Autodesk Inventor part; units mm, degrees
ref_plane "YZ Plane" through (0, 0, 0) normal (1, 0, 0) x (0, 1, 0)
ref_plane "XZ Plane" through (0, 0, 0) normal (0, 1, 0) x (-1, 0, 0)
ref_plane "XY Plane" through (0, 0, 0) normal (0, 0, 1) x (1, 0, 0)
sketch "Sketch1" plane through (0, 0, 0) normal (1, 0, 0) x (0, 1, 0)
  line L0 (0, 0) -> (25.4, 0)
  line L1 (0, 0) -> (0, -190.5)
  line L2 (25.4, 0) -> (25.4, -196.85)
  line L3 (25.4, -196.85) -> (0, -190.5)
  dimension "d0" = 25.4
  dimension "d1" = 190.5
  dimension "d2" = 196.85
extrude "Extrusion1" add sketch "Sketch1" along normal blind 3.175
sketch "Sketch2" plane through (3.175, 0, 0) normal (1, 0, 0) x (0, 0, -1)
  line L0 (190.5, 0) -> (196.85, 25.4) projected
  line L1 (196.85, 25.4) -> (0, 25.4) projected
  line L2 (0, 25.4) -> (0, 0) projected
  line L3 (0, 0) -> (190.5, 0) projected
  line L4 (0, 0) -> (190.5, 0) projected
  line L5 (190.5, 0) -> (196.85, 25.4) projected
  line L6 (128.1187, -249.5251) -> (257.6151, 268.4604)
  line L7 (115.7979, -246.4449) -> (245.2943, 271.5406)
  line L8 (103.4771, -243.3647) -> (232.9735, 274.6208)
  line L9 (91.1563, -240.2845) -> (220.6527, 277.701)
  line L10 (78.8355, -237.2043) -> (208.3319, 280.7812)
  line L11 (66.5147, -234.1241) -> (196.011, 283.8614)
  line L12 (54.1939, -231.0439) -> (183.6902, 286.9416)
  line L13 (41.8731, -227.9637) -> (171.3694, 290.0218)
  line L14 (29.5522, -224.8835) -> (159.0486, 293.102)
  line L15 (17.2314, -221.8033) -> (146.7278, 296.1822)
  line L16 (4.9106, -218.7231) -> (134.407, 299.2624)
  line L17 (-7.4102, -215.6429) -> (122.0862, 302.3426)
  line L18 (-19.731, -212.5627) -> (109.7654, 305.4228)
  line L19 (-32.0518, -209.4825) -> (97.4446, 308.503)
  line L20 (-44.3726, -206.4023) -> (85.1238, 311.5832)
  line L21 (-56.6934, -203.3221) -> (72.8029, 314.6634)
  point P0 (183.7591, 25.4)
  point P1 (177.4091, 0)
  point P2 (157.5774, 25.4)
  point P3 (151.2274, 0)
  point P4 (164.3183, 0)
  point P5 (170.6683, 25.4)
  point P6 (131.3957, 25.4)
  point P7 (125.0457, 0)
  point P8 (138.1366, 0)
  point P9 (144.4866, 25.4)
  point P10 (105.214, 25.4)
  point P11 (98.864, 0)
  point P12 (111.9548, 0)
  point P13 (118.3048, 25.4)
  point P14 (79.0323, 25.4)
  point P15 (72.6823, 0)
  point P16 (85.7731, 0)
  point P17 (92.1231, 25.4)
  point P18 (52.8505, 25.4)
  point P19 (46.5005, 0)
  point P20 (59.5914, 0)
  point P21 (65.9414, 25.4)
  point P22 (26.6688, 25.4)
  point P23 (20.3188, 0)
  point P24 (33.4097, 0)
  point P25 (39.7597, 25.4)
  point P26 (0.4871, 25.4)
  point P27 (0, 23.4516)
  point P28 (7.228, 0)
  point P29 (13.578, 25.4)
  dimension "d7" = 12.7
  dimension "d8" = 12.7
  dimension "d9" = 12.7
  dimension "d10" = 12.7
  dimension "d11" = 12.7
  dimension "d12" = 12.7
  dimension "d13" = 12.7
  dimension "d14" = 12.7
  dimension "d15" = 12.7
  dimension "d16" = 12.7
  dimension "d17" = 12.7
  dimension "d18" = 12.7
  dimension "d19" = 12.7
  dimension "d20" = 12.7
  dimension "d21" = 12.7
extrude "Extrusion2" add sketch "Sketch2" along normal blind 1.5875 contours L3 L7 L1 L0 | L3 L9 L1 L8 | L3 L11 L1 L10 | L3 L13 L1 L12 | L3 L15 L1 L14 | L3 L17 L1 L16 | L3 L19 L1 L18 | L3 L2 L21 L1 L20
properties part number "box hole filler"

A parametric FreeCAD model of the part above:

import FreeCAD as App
import Part
import Sketcher

V = App.Vector
Q = App.Units.Quantity


def add_polygon(sketch, points):
    """Adds a closed chain of lines whose ends are joined by coincident constraints."""
    first, n = sketch.GeometryCount, len(points)
    for a, b in zip(points, points[1:] + points[:1]):
        sketch.addGeometry(Part.LineSegment(App.Vector(*a, 0), App.Vector(*b, 0)), False)
    for i in range(n):
        sketch.addConstraint(Sketcher.Constraint("Coincident", first + i, 2, first + (i + 1) % n, 1))

doc = App.newDocument("Part")
params = doc.addObject("Spreadsheet::Sheet", "Params")
for row, (alias, value) in enumerate([
    ("sketch1_width", "1 in"),
    ("sketch1_height", "7.5 in"),
    ("sketch1_height2", "7.75 in"),
    ("pad1_length", "0.125 in"),
    ("pad2_length", "0.0625 in"),
], start=1):
    params.set(f"A{row}", alias)
    params.set(f"B{row}", "=" + value)
    params.setAlias(f"B{row}", alias)

body = doc.addObject("PartDesign::Body", "Body")

# Sketch on YZ plane
sketch1 = doc.addObject("Sketcher::SketchObject", "Sketch")
body.addObject(sketch1)
sketch1.AttachmentSupport = (doc.YZ_Plane, [""])
sketch1.MapMode = "FlatFace"
add_polygon(sketch1, [(25, 0), (0, 0), (0, -190), (25, -197)])  # lines 0-3
sketch1.addConstraint([
    Sketcher.Constraint("Horizontal", 0),
    Sketcher.Constraint("Vertical", 1),
    Sketcher.Constraint("Vertical", 3),
    Sketcher.Constraint("Coincident", 0, 2, -1, 1),
    Sketcher.Constraint("DistanceX", 0, 2, 0, 1, Q("1 in")),
    Sketcher.Constraint("DistanceY", 1, 2, 1, 1, Q("7.5 in")),
    Sketcher.Constraint("DistanceY", 3, 1, 3, 2, Q("7.75 in")),
])
sketch1.setExpression("Constraints[8]", "Params.sketch1_width")
sketch1.setExpression("Constraints[9]", "Params.sketch1_height")
sketch1.setExpression("Constraints[10]", "Params.sketch1_height2")
pad1 = doc.addObject("PartDesign::Pad", "Pad")
body.addObject(pad1)
pad1.Profile = sketch1
pad1.setExpression("Length", "Params.pad1_length")

# Sketch on YZ plane
sketch2 = doc.addObject("Sketcher::SketchObject", "Sketch001")
body.addObject(sketch2)
sketch2.AttachmentSupport = (doc.YZ_Plane, [""])
sketch2.MapMode = "FlatFace"
sketch2.AttachmentOffset = App.Placement(V(0, 0, 0.125 * 25.4), App.Rotation())
add_polygon(sketch2, [(0, -177.4), (0, -190.5), (25.4, -196.8), (25.4, -183.8)])  # lines 0-3
add_polygon(sketch2, [(0, -151.2), (0, -164.3), (25.4, -170.7), (25.4, -157.6)])  # lines 4-7
add_polygon(sketch2, [(0, -125), (0, -138.1), (25.4, -144.5), (25.4, -131.4)])  # lines 8-11
add_polygon(sketch2, [(0, -98.9), (0, -112), (25.4, -118.3), (25.4, -105.2)])  # lines 12-15
add_polygon(sketch2, [(0, -72.7), (0, -85.8), (25.4, -92.1), (25.4, -79)])  # lines 16-19
add_polygon(sketch2, [(0, -46.5), (0, -59.6), (25.4, -65.9), (25.4, -52.9)])  # lines 20-23
add_polygon(sketch2, [(0, -20.3), (0, -33.4), (25.4, -39.8), (25.4, -26.7)])  # lines 24-27
add_polygon(sketch2, [(0, 0), (0, -7.2), (25.4, -13.6), (25.4, -0.5), (23.5, 0)])  # lines 28-32
sketch2.addConstraint([
    Sketcher.Constraint("Vertical", 0),
    Sketcher.Constraint("Vertical", 2),
    Sketcher.Constraint("Vertical", 4),
    Sketcher.Constraint("Vertical", 6),
    Sketcher.Constraint("Vertical", 8),
    Sketcher.Constraint("Vertical", 10),
    Sketcher.Constraint("Vertical", 12),
    Sketcher.Constraint("Vertical", 14),
    Sketcher.Constraint("Vertical", 16),
    Sketcher.Constraint("Vertical", 18),
    Sketcher.Constraint("Vertical", 20),
    Sketcher.Constraint("Vertical", 22),
    Sketcher.Constraint("Vertical", 24),
    Sketcher.Constraint("Vertical", 26),
    Sketcher.Constraint("Vertical", 28),
    Sketcher.Constraint("Vertical", 30),
    Sketcher.Constraint("Horizontal", 32),
    Sketcher.Constraint("Coincident", 32, 2, -1, 1),
    Sketcher.Constraint("PointOnObject", 0, 2, -2),
    Sketcher.Constraint("PointOnObject", 4, 2, -2),
    Sketcher.Constraint("PointOnObject", 8, 2, -2),
    Sketcher.Constraint("PointOnObject", 12, 2, -2),
    Sketcher.Constraint("PointOnObject", 16, 2, -2),
    Sketcher.Constraint("PointOnObject", 20, 2, -2),
    Sketcher.Constraint("PointOnObject", 24, 2, -2),
    Sketcher.Constraint("Parallel", 1, 3),
    Sketcher.Constraint("Parallel", 3, 5),
    Sketcher.Constraint("Parallel", 5, 7),
    Sketcher.Constraint("Parallel", 7, 9),
    Sketcher.Constraint("Parallel", 9, 11),
    Sketcher.Constraint("Parallel", 11, 13),
    Sketcher.Constraint("Parallel", 13, 15),
    Sketcher.Constraint("Parallel", 15, 17),
    Sketcher.Constraint("Parallel", 17, 19),
    Sketcher.Constraint("Parallel", 19, 21),
    Sketcher.Constraint("Parallel", 21, 23),
    Sketcher.Constraint("Parallel", 23, 25),
    Sketcher.Constraint("Parallel", 25, 27),
    Sketcher.Constraint("Parallel", 27, 29),
    Sketcher.Constraint("Parallel", 29, 31),
    Sketcher.Constraint("Vertical", 2, 2, 5, 2),
    Sketcher.Constraint("Vertical", 6, 2, 9, 2),
    Sketcher.Constraint("Vertical", 10, 2, 13, 2),
    Sketcher.Constraint("Vertical", 14, 2, 17, 2),
    Sketcher.Constraint("Vertical", 18, 2, 21, 2),
    Sketcher.Constraint("Vertical", 22, 2, 25, 2),
    Sketcher.Constraint("Vertical", 26, 2, 29, 2),
    Sketcher.Constraint("Equal", 2, 4),
    Sketcher.Constraint("Equal", 6, 8),
    Sketcher.Constraint("Equal", 10, 12),
    Sketcher.Constraint("Equal", 14, 16),
    Sketcher.Constraint("Equal", 18, 20),
    Sketcher.Constraint("Equal", 22, 24),
    Sketcher.Constraint("Equal", 26, 30),
    Sketcher.Constraint("DistanceX", -1, 1, 1, 2, Q("1 in")),
    Sketcher.Constraint("DistanceY", 0, 2, -1, 1, Q("7.5 in")),
    Sketcher.Constraint("DistanceY", 1, 2, -1, 1, Q("7.75 in")),
    Sketcher.Constraint("DistanceX", 32, 2, 32, 1, Q("0.9233 in")),
    Sketcher.Constraint("DistanceY", 0, 2, 0, 1, Q("0.5154 in")),
    Sketcher.Constraint("DistanceY", 16, 2, -1, 1, Q("3.3769 in")),
    Sketcher.Constraint("DistanceY", 15, 2, 16, 2, Q("0.5154 in")),
    Sketcher.Constraint("DistanceY", 4, 2, -1, 1, 164.3183),
    Sketcher.Constraint("DistanceY", 8, 2, -1, 1, 138.1366),
    Sketcher.Constraint("DistanceY", 20, 2, -1, 1, 59.5914),
    Sketcher.Constraint("DistanceY", 24, 2, -1, 1, 33.4097),
])
pad2 = doc.addObject("PartDesign::Pad", "Pad001")
body.addObject(pad2)
pad2.Profile = sketch2
pad2.setExpression("Length", "Params.pad2_length")

doc.recompute()
